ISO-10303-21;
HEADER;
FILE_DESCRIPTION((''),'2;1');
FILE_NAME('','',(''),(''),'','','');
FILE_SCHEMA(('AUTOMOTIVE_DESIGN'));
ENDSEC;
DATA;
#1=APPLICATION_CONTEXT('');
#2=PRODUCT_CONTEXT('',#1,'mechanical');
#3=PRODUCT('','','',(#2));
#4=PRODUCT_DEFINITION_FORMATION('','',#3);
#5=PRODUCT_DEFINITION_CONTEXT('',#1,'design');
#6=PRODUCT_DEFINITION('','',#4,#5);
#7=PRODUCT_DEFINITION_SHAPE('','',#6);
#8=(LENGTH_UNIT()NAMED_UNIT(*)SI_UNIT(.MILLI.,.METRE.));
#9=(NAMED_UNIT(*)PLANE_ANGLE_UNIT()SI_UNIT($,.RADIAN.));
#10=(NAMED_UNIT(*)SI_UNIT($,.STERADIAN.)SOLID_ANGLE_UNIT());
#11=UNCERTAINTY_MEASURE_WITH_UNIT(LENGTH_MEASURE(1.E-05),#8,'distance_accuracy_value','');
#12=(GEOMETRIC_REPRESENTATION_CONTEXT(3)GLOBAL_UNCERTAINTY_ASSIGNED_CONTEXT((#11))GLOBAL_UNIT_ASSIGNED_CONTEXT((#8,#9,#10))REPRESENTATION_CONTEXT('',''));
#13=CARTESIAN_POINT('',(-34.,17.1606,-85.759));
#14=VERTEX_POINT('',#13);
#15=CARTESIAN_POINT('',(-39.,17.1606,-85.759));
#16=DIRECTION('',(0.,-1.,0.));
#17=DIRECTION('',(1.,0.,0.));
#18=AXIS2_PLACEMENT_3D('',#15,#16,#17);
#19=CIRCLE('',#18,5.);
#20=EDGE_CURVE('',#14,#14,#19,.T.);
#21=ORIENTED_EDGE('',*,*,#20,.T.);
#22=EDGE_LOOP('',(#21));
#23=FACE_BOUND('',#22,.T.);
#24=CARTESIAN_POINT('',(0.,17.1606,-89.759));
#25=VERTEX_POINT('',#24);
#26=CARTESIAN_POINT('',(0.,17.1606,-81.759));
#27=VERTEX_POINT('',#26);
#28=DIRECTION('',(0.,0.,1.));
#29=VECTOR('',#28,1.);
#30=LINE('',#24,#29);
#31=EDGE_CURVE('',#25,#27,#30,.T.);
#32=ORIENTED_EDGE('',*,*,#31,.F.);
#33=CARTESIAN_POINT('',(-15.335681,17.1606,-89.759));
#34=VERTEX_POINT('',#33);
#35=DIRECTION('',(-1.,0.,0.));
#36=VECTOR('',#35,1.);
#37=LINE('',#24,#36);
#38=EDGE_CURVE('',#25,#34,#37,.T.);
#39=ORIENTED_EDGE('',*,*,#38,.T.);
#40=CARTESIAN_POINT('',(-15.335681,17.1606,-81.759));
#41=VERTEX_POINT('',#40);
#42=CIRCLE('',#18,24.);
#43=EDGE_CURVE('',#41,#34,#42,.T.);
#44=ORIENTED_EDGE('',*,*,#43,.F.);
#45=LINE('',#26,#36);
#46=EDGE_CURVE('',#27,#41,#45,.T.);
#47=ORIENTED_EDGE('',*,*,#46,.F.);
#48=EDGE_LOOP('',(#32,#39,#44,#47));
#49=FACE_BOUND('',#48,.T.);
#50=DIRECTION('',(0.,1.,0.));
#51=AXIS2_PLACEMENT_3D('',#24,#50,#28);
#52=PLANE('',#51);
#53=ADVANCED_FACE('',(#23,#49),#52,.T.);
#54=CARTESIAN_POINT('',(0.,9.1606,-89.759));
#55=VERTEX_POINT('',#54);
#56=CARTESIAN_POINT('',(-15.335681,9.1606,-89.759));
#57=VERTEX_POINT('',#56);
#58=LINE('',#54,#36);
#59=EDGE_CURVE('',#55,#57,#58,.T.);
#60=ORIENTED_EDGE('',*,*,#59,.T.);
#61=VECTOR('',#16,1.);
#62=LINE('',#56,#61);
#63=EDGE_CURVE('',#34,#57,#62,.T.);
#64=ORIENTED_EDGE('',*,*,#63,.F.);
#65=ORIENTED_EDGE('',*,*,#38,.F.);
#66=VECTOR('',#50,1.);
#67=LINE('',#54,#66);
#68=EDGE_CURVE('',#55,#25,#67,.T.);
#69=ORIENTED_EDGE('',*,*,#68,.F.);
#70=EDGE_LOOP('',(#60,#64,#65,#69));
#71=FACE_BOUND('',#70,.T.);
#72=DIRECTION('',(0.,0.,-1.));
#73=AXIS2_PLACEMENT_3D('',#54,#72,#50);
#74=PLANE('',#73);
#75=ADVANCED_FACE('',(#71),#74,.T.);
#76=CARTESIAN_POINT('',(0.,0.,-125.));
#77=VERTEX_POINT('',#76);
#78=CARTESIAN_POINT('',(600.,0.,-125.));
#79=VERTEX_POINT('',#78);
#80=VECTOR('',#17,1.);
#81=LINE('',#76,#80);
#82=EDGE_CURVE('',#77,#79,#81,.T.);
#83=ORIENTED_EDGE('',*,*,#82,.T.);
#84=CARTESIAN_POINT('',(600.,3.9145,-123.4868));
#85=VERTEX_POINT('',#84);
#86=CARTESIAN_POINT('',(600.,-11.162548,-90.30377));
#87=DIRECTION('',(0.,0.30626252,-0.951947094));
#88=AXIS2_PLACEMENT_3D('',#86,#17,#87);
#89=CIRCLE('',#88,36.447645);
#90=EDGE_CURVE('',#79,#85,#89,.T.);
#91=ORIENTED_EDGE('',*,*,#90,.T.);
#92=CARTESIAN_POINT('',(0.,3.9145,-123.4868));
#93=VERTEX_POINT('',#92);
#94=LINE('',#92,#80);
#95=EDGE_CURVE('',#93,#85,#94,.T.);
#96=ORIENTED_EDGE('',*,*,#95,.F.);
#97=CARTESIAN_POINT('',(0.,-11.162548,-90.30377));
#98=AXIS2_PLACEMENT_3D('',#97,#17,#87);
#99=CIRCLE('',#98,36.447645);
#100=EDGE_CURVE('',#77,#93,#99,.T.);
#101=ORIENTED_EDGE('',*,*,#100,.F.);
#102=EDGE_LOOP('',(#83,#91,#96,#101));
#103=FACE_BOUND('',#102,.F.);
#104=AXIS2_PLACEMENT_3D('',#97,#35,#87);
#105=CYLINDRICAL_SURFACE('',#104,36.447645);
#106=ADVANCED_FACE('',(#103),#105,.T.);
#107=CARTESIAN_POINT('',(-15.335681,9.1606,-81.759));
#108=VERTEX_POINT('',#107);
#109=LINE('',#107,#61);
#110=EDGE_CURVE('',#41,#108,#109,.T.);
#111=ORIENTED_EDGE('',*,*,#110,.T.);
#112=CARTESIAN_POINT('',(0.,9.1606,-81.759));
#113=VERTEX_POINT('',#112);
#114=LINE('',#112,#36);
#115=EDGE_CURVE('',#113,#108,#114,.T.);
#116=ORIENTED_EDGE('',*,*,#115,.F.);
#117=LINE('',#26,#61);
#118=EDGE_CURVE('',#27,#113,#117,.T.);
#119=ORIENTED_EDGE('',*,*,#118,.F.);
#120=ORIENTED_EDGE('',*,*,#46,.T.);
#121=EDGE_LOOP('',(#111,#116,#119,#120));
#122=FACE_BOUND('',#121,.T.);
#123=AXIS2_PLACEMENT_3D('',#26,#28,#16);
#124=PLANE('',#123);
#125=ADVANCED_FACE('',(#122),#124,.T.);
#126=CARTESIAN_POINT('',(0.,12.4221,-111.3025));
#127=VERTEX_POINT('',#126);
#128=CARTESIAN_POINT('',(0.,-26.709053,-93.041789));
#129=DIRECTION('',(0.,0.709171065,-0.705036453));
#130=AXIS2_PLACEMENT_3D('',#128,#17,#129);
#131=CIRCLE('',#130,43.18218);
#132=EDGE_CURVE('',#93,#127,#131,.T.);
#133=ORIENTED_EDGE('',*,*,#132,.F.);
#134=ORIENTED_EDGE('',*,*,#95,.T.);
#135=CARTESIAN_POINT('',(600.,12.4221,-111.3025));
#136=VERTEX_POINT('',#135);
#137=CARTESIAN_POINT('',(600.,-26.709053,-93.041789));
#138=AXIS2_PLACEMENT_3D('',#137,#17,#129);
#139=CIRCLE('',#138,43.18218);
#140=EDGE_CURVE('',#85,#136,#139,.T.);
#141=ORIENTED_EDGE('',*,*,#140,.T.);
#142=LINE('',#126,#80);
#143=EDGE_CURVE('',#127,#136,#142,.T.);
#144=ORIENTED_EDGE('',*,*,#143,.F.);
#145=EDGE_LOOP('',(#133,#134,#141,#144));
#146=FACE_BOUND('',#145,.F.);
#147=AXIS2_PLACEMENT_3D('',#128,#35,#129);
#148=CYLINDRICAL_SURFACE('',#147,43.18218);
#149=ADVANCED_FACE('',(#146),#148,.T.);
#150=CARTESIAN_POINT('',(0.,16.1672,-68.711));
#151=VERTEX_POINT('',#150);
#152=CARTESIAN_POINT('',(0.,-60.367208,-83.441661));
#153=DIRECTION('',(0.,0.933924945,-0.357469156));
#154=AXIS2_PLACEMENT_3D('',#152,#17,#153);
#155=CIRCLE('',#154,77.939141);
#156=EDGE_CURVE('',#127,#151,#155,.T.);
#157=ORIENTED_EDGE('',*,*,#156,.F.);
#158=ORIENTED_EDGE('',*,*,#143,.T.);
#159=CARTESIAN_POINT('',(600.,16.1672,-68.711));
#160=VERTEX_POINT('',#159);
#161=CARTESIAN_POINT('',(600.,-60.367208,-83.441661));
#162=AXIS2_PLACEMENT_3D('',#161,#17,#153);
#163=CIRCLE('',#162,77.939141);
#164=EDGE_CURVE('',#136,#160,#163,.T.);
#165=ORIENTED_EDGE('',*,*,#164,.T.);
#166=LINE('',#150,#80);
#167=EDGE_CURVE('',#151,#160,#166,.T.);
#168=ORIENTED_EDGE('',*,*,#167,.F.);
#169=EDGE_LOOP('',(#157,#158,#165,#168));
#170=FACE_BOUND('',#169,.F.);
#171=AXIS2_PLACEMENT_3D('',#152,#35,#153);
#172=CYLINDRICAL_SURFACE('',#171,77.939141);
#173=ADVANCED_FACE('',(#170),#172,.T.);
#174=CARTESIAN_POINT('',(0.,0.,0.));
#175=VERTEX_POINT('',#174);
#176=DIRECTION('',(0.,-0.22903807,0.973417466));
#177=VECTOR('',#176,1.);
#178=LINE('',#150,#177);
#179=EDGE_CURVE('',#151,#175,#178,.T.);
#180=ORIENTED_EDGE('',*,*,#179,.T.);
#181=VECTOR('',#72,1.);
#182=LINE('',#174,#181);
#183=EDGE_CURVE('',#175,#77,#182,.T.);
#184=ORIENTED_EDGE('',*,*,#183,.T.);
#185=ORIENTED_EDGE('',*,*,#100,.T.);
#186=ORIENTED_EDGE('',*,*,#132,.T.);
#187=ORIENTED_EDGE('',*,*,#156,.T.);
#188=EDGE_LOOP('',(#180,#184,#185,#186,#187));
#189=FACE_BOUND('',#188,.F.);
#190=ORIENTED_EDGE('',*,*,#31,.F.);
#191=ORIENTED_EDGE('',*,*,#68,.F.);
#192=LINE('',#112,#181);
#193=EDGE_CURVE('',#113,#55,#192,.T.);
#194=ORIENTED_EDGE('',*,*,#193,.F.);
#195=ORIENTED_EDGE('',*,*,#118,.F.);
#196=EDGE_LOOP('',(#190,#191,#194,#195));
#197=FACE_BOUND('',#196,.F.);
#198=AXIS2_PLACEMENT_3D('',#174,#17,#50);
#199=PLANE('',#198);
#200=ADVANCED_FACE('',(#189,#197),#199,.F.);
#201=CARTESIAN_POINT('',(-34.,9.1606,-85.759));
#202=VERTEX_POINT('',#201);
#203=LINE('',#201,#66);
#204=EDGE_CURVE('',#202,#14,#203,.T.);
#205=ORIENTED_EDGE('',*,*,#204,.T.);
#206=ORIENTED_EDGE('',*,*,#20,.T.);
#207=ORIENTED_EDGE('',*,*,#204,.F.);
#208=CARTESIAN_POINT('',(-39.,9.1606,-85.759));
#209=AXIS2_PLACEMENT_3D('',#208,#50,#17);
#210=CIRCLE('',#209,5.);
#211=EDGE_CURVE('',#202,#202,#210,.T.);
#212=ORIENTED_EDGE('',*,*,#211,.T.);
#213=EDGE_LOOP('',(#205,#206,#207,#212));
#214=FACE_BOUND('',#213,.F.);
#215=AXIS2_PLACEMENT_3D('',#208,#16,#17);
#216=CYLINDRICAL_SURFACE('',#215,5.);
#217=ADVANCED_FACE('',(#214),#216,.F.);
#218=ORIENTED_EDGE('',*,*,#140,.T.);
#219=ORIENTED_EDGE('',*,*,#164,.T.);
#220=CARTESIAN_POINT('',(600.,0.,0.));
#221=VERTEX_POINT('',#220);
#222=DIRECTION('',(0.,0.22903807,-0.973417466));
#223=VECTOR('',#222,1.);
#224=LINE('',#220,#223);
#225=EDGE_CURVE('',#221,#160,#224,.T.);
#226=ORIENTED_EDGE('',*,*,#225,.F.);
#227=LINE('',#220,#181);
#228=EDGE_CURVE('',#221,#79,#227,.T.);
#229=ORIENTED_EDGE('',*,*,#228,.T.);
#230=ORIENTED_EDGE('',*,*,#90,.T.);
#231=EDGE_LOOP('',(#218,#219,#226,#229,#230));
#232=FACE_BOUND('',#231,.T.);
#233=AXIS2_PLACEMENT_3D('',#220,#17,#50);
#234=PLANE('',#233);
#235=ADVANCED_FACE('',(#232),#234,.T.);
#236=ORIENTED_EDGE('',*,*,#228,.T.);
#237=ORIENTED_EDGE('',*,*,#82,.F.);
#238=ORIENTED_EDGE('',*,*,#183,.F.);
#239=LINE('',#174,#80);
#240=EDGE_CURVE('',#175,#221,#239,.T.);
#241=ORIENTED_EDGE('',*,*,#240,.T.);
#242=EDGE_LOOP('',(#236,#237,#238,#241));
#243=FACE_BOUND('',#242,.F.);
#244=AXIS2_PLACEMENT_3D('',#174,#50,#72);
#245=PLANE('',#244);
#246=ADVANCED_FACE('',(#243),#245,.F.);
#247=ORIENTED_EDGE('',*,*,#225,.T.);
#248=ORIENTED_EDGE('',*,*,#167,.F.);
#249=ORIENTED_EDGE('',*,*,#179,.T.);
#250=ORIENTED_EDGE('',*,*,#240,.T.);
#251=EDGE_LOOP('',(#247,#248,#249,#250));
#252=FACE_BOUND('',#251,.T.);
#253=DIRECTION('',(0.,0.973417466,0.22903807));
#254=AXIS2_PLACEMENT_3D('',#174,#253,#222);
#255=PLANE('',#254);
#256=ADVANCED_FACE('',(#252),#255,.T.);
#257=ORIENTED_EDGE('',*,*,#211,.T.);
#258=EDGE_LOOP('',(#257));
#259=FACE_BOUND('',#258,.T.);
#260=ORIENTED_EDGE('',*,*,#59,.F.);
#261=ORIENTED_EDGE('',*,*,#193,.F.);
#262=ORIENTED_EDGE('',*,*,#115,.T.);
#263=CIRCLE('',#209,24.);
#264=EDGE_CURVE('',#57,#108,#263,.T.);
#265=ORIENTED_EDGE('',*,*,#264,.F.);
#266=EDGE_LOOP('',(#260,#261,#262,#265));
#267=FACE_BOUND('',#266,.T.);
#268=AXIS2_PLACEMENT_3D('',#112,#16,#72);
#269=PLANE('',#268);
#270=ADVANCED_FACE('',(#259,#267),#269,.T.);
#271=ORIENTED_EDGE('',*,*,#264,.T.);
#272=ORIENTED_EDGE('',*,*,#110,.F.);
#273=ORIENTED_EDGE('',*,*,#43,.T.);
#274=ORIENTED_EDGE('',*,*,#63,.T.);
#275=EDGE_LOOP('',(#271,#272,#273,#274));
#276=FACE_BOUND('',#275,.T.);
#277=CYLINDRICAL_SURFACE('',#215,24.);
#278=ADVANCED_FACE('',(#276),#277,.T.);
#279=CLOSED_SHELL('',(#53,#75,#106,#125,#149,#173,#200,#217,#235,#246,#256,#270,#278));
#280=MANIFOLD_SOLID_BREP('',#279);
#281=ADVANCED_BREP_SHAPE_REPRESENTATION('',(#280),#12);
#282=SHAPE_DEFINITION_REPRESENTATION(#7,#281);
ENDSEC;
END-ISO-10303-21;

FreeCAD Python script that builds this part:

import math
import FreeCAD as App
import Part
import Sketcher
Q = App.Units.Quantity

doc = App.newDocument("Part")
body = doc.addObject("PartDesign::Body", "Body")

# Sketch on YZ plane
sketch1 = body.newObject("Sketcher::SketchObject", "Sketch")
sketch1.AttachmentSupport = (doc.getObject("YZ_Plane"), [""])
sketch1.MapMode = "FlatFace"
sketch1.addGeometry([
    Part.LineSegment(App.Vector(16.2, -68.7, 0), App.Vector(0, 0, 0)),  # 0
    Part.LineSegment(App.Vector(0, 0, 0), App.Vector(0, -125, 0)),  # 1
    Part.ArcOfCircle(Part.Circle(App.Vector(-11.2, -90.3, 0), App.Vector(0, 0, 1), 36.4), math.radians(-72.17), math.radians(-65.56)),  # 2
    Part.ArcOfCircle(Part.Circle(App.Vector(-26.7, -93, 0), App.Vector(0, 0, 1), 43.2), math.radians(-44.83), math.radians(-25.02)),  # 3
    Part.ArcOfCircle(Part.Circle(App.Vector(-60.4, -83.4, 0), App.Vector(0, 0, 1), 77.9), math.radians(-21), math.radians(11)),  # 4
], False)
sketch1.addConstraint([
    Sketcher.Constraint("Coincident", 0, 2, 1, 1),
    Sketcher.Constraint("Coincident", 1, 2, 2, 1),
    Sketcher.Constraint("Coincident", 2, 2, 3, 1),
    Sketcher.Constraint("Coincident", 3, 2, 4, 1),
    Sketcher.Constraint("Coincident", 4, 2, 0, 1),
    Sketcher.Constraint("Vertical", 1),
    Sketcher.Constraint("Coincident", 0, 2, -1, 1),
    Sketcher.Constraint("DistanceY", 1, 2, 1, 1, 125.0),
    Sketcher.Constraint("Angle", 0, Q("103.2404 deg")),
    Sketcher.Constraint("Radius", 2, 36.4476),
    Sketcher.Constraint("Radius", 3, 43.1819),
    Sketcher.Constraint("Radius", 4, 77.9394),
    Sketcher.Constraint("DistanceY", 3, 3, -1, 1, 93.042),
    Sketcher.Constraint("DistanceX", -1, 1, 3, 2, 12.422),
    Sketcher.Constraint("DistanceY", 4, 2, -1, 1, 68.711),
    Sketcher.Constraint("DistanceX", 4, 3, 2, 3, 49.205),
    Sketcher.Constraint("DistanceX", 2, 3, 2, 2, 15.077),
])
pad1 = body.newObject("PartDesign::Pad", "Pad")
pad1.Profile = sketch1
pad1.Length = 600

# Sketch on YZ plane
sketch2 = body.newObject("Sketcher::SketchObject", "Sketch001")
sketch2.AttachmentSupport = (doc.getObject("YZ_Plane"), [""])
sketch2.MapMode = "FlatFace"
sketch2.addGeometry([
    Part.LineSegment(App.Vector(17, -82, 0), App.Vector(17, -90, 0)),
    Part.LineSegment(App.Vector(17, -90, 0), App.Vector(9, -90, 0)),
    Part.LineSegment(App.Vector(9, -90, 0), App.Vector(9, -82, 0)),
    Part.LineSegment(App.Vector(9, -82, 0), App.Vector(17, -82, 0)),
], False)
sketch2.addConstraint([
    Sketcher.Constraint("Coincident", 0, 2, 1, 1),
    Sketcher.Constraint("Coincident", 1, 2, 2, 1),
    Sketcher.Constraint("Coincident", 2, 2, 3, 1),
    Sketcher.Constraint("Coincident", 3, 2, 0, 1),
    Sketcher.Constraint("Vertical", 0),
    Sketcher.Constraint("Horizontal", 1),
    Sketcher.Constraint("Vertical", 2),
    Sketcher.Constraint("Horizontal", 3),
    Sketcher.Constraint("Equal", 3, 0),
    Sketcher.Constraint("DistanceX", 1, 2, 1, 1, 8.0),
    Sketcher.Constraint("DistanceY", 0, 2, -1, 1, 89.759),
    Sketcher.Constraint("DistanceX", -1, 1, 0, 2, 17.1606),
])
pad2 = body.newObject("PartDesign::Pad", "Pad001")
pad2.Profile = sketch2
pad2.Length = 48
pad2.Reversed = True

# Sketch on XZ plane
sketch3 = body.newObject("Sketcher::SketchObject", "Sketch002")
sketch3.AttachmentSupport = (doc.getObject("XZ_Plane"), [""])
sketch3.MapMode = "FlatFace"
sketch3.AttachmentOffset = App.Placement(App.Vector(0, 0, -9.1606), App.Rotation())
sketch3.addGeometry(Part.Circle(App.Vector(-39, -86, 0), App.Vector(0, 0, 1), 24), False)
sketch3.addConstraint([
    Sketcher.Constraint("Diameter", 0, 48.0),
    Sketcher.Constraint("DistanceX", 0, 3, -1, 1, 39.0),
    Sketcher.Constraint("DistanceY", 0, 3, -1, 1, 85.759),
])
pad3 = body.newObject("PartDesign::Pad", "Pad002")
pad3.Profile = sketch3
pad3.Length = 8
pad3.Reversed = True

# Sketch on XZ plane
sketch4 = body.newObject("Sketcher::SketchObject", "Sketch003")
sketch4.AttachmentSupport = (doc.getObject("XZ_Plane"), [""])
sketch4.MapMode = "FlatFace"
sketch4.AttachmentOffset = App.Placement(App.Vector(0, 0, -9.1606), App.Rotation())
sketch4.addGeometry(Part.Circle(App.Vector(-39, -86, 0), App.Vector(0, 0, 1), 5), False)
sketch4.addConstraint([
    Sketcher.Constraint("Diameter", 0, 10.0),
    Sketcher.Constraint("DistanceX", 0, 3, -1, 1, 39.0),
    Sketcher.Constraint("DistanceY", 0, 3, -1, 1, 85.759),
])
pocket1 = body.newObject("PartDesign::Pocket", "Pocket")
pocket1.Profile = sketch4
pocket1.Length = 8

doc.recompute()
